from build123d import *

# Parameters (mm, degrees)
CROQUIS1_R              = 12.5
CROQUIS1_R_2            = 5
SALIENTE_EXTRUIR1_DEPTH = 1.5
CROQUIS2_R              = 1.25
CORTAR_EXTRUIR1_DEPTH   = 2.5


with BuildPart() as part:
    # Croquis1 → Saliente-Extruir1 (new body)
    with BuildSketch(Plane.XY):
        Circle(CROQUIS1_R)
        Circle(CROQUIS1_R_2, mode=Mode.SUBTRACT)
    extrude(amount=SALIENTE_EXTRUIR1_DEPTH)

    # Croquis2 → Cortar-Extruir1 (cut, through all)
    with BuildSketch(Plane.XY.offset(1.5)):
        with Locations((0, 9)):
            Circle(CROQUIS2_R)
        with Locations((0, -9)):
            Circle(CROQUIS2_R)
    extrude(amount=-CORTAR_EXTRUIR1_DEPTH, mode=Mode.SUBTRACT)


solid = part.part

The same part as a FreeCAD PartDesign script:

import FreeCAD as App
import Part
import Sketcher
from FreeCAD import Vector

doc = App.newDocument("Part")
body = doc.addObject("PartDesign::Body", "Body")

sketch1 = body.newObject("Sketcher::SketchObject", "Sketch")
sketch1.AttachmentSupport = (doc.getObject("XY_Plane"), [""])
sketch1.MapMode = "FlatFace"
sketch1.addGeometry([
    Part.Circle(Vector(0, 0, 0), Vector(0, 0, 1), 12),
    Part.Circle(Vector(0, 0, 0), Vector(0, 0, 1), 5),
], False)
sketch1.addConstraint([
    Sketcher.Constraint("Coincident", 0, 3, -1, 1),
    Sketcher.Constraint("Coincident", 1, 3, -1, 1),
    Sketcher.Constraint("Diameter", 0, 25.0),
    Sketcher.Constraint("Diameter", 1, 10.0),
])
pad1 = body.newObject("PartDesign::Pad", "Pad")
pad1.Profile = sketch1
pad1.Length = 1.5

sketch2 = body.newObject("Sketcher::SketchObject", "Sketch001")
sketch2.AttachmentSupport = (doc.getObject("XY_Plane"), [""])
sketch2.MapMode = "FlatFace"
sketch2.AttachmentOffset = App.Placement(Vector(0, 0, 1.5), App.Rotation())
sketch2.addGeometry([
    Part.Circle(Vector(0, 9, 0), Vector(0, 0, 1), 1.2),
    Part.Circle(Vector(0, -9, 0), Vector(0, 0, 1), 1.2),
], False)
sketch2.addConstraint([
    Sketcher.Constraint("Equal", 0, 1),
    Sketcher.Constraint("Symmetric", 0, 3, 1, 3, -1, 1),
    Sketcher.Constraint("PointOnObject", 0, 3, -2),
    Sketcher.Constraint("Diameter", 0, 2.5),
    Sketcher.Constraint("DistanceY", -1, 1, 0, 3, 9.0),
])
pocket1 = body.newObject("PartDesign::Pocket", "Pocket")
pocket1.Profile = sketch2
pocket1.Type = "ThroughAll"

doc.recompute()
